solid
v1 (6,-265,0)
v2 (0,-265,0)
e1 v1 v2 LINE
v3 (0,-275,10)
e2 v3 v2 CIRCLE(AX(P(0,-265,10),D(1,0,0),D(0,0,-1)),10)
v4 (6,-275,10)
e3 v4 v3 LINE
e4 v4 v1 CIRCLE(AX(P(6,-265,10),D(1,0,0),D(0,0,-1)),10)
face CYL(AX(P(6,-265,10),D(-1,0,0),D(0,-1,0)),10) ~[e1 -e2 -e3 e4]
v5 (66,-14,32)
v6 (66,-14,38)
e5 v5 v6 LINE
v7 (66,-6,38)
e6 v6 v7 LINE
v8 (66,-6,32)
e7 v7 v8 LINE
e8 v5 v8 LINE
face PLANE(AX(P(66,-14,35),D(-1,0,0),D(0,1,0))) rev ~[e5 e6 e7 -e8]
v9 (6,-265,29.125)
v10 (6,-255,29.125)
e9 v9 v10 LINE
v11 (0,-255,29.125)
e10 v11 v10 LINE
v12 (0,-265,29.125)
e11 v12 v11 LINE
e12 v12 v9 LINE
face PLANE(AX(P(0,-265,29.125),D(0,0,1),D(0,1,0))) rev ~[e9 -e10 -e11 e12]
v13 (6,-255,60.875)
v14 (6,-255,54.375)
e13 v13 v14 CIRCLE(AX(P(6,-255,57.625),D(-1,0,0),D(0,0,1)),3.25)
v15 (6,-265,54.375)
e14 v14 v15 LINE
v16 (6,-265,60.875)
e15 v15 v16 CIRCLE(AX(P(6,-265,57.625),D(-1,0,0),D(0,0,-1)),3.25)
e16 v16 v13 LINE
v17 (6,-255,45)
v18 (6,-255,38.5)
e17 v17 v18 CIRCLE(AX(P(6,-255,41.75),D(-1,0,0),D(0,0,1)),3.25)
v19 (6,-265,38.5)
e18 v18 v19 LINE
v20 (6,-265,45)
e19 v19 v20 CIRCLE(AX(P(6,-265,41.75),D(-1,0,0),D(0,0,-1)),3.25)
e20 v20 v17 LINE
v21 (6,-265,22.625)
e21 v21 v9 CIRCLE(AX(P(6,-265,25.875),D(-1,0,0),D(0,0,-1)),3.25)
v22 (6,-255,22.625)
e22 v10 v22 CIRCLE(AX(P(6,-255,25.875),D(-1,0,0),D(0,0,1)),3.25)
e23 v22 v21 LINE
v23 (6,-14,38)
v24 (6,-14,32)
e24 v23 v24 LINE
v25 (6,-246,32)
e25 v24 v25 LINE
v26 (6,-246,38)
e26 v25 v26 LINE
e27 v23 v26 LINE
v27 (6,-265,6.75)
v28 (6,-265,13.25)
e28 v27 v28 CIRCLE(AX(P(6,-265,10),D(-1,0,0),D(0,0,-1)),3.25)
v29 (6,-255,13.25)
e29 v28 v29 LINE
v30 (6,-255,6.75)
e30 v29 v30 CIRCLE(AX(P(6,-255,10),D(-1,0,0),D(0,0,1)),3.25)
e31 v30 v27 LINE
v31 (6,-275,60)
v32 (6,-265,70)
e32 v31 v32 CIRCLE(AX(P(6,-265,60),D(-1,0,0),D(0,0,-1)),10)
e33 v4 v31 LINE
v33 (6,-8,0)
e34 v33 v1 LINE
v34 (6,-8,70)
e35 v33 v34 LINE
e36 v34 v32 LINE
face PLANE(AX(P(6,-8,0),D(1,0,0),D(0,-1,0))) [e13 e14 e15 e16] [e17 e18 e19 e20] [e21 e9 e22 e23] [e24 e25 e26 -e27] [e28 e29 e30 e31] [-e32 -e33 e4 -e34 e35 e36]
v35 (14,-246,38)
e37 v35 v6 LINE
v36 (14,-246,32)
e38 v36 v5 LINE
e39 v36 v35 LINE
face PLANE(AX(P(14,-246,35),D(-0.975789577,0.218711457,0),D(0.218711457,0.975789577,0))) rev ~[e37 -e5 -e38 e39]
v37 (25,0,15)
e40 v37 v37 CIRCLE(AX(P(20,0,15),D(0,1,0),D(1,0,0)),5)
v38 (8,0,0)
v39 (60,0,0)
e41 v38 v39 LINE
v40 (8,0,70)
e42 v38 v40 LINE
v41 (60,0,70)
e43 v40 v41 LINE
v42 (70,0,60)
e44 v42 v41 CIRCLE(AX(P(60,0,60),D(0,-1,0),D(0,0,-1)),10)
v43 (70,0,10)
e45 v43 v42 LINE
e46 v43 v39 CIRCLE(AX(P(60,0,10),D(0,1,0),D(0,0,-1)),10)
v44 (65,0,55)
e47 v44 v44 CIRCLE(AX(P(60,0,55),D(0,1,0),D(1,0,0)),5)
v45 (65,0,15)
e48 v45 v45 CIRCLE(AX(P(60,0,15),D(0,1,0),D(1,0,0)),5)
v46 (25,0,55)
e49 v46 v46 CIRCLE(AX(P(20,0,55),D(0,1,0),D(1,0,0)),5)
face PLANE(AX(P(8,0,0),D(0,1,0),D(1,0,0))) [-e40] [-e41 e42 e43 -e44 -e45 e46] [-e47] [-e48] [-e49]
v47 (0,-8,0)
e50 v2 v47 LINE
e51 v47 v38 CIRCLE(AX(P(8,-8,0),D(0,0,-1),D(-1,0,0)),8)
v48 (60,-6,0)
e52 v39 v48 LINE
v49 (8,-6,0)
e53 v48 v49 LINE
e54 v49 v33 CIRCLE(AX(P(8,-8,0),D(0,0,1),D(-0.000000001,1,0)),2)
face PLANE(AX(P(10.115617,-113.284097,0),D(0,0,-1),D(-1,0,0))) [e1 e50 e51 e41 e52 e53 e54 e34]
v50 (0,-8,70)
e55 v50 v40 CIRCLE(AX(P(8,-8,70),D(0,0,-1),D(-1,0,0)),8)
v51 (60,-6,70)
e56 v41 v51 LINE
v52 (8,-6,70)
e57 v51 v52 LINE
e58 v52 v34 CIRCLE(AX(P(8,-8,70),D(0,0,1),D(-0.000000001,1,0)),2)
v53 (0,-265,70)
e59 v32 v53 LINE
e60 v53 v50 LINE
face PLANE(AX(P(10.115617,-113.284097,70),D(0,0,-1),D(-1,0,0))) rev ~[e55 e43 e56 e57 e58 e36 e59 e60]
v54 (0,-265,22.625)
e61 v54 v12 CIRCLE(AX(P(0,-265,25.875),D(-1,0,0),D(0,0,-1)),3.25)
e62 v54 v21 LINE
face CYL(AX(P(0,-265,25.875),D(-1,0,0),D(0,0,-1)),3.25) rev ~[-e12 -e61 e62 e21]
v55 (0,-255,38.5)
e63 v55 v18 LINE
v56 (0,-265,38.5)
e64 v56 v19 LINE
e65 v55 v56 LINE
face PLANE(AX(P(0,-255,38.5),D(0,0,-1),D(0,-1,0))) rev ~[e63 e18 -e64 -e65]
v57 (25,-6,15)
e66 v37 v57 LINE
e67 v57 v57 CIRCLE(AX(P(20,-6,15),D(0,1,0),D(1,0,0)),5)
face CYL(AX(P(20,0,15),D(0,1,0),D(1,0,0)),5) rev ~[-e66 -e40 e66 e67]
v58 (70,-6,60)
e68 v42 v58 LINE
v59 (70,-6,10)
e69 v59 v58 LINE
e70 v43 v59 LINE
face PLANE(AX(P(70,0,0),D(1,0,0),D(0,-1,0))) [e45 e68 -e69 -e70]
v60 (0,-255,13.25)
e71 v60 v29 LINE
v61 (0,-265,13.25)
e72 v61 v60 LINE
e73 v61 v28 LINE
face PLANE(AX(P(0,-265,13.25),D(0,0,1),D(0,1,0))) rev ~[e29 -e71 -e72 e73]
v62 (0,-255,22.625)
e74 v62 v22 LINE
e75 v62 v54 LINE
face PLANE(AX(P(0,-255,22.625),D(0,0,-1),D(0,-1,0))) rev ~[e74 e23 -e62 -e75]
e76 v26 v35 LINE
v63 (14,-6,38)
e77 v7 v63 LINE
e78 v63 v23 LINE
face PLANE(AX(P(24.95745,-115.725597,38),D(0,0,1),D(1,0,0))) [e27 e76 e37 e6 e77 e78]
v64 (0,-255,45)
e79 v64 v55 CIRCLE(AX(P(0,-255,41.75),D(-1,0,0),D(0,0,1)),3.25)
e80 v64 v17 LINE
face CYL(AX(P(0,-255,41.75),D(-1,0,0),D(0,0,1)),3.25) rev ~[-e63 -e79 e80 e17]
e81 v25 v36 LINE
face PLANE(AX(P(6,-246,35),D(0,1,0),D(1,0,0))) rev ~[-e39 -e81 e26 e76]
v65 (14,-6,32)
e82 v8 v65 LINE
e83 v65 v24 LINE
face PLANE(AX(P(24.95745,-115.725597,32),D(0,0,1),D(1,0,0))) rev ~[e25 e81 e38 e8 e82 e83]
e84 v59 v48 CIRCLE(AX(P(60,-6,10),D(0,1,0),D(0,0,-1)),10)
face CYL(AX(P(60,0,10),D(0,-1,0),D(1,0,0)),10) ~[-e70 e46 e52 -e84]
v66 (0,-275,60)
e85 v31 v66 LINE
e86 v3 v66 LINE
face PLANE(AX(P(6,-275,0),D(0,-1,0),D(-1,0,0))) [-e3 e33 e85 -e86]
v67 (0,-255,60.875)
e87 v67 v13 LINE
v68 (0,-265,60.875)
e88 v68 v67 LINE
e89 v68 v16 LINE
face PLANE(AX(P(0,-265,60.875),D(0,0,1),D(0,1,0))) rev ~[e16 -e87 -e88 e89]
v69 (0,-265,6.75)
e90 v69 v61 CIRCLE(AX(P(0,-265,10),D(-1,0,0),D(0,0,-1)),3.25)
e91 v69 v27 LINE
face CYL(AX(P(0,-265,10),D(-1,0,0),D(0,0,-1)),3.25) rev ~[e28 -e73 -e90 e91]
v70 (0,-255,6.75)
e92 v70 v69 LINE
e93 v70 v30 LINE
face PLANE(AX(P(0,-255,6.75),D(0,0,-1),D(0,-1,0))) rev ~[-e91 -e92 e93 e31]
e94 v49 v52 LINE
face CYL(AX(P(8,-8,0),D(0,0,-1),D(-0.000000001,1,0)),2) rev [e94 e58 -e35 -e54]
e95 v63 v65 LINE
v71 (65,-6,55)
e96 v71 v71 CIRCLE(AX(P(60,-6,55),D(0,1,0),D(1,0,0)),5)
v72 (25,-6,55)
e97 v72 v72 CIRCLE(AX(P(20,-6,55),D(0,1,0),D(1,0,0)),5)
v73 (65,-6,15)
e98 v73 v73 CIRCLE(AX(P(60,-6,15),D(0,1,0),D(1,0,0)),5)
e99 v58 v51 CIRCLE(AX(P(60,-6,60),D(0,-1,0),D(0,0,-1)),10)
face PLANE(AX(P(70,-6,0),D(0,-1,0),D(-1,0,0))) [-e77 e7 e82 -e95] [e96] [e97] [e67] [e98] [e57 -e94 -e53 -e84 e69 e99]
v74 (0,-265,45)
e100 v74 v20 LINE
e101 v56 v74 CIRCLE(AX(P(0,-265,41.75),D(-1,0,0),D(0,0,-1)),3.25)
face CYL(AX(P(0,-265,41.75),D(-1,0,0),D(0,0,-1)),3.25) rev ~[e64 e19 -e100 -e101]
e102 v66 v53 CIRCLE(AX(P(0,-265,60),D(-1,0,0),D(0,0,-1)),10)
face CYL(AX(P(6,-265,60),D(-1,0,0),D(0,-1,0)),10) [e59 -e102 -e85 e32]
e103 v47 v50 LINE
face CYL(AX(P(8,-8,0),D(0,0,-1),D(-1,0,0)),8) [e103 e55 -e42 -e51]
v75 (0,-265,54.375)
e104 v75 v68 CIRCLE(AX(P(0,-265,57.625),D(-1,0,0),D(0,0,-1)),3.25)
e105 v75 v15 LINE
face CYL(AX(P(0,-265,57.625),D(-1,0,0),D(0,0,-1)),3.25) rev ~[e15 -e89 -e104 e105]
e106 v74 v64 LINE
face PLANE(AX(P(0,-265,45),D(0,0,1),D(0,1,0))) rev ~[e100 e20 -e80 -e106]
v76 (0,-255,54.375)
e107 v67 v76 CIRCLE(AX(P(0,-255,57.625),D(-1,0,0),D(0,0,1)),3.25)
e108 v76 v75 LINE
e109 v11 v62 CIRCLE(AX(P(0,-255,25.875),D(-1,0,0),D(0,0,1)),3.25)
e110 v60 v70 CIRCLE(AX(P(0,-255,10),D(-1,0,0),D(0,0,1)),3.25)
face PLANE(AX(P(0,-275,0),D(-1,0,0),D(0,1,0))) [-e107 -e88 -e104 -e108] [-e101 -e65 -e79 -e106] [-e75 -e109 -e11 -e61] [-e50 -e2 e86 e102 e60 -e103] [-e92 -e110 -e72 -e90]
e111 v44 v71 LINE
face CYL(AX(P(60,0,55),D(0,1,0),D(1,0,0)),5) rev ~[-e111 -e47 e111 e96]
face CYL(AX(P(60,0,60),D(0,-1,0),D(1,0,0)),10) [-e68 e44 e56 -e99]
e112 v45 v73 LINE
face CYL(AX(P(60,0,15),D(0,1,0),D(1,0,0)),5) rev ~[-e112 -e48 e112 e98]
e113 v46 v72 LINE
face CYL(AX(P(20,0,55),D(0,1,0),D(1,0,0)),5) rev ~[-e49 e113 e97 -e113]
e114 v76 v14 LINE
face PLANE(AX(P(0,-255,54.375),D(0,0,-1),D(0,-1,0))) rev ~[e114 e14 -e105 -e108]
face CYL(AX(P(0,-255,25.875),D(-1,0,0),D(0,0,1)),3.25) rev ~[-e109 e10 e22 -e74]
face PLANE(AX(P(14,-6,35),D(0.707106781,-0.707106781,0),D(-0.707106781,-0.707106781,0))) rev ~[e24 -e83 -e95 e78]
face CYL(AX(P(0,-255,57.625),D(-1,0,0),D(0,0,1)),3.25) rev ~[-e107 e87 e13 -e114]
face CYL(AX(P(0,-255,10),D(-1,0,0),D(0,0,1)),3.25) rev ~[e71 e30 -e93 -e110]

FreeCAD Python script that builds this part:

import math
import FreeCAD as App
import Part
import Sketcher


def edges_at(feature, points):
    """Names of the edges that pass closest to the given points."""
    edges = feature.Shape.Edges
    near = lambda p: min(range(len(edges)), key=lambda i: edges[i].distToShape(Part.Vertex(*p))[0])
    return sorted({f"Edge{near(p) + 1}" for p in points})


def add_polygon(sketch, points):
    """Adds a closed chain of lines whose ends are joined by coincident constraints."""
    first, n = sketch.GeometryCount, len(points)
    for a, b in zip(points, points[1:] + points[:1]):
        sketch.addGeometry(Part.LineSegment(App.Vector(*a, 0), App.Vector(*b, 0)), False)
    for i in range(n):
        sketch.addConstraint(Sketcher.Constraint("Coincident", first + i, 2, first + (i + 1) % n, 1))

doc = App.newDocument("Part")
body = doc.addObject("PartDesign::Body", "Body")

# Sketch on XY plane
sketch1 = body.newObject("Sketcher::SketchObject", "Sketch")
sketch1.AttachmentSupport = (doc.getObject("XY_Plane"), [""])
sketch1.MapMode = "FlatFace"
sketch1.addGeometry(Part.LineSegment(App.Vector(70, 0, 0), App.Vector(8, 0, 0)), False)
sketch1.addGeometry(Part.ArcOfCircle(Part.Circle(App.Vector(8, -8, 0), App.Vector(0, 0, 1), 8), math.radians(90), math.radians(180)), False)
sketch1.addGeometry(Part.LineSegment(App.Vector(0, -8, 0), App.Vector(0, -275, 0)), False)
sketch1.addGeometry(Part.LineSegment(App.Vector(0, -275, 0), App.Vector(6, -275, 0)), False)
sketch1.addGeometry(Part.LineSegment(App.Vector(6, -275, 0), App.Vector(6, -8, 0)), False)
sketch1.addGeometry(Part.ArcOfCircle(Part.Circle(App.Vector(8, -8, 0), App.Vector(0, 0, 1), 2), math.radians(90), math.radians(180)), False)
sketch1.addGeometry(Part.LineSegment(App.Vector(8, -6, 0), App.Vector(70, -6, 0)), False)
sketch1.addGeometry(Part.LineSegment(App.Vector(70, -6, 0), App.Vector(70, 0, 0)), False)
sketch1.addConstraint(Sketcher.Constraint("Tangent", 0, 2, 1, 1))
sketch1.addConstraint(Sketcher.Constraint("Tangent", 1, 2, 2, 1))
sketch1.addConstraint(Sketcher.Constraint("Coincident", 2, 2, 3, 1))
sketch1.addConstraint(Sketcher.Constraint("Coincident", 3, 2, 4, 1))
sketch1.addConstraint(Sketcher.Constraint("Tangent", 4, 2, 5, 2))
sketch1.addConstraint(Sketcher.Constraint("Tangent", 5, 1, 6, 1))
sketch1.addConstraint(Sketcher.Constraint("Coincident", 6, 2, 7, 1))
sketch1.addConstraint(Sketcher.Constraint("Coincident", 7, 2, 0, 1))
sketch1.addConstraint(Sketcher.Constraint("Horizontal", 0))
sketch1.addConstraint(Sketcher.Constraint("Vertical", 2))
sketch1.addConstraint(Sketcher.Constraint("Horizontal", 3))
sketch1.addConstraint(Sketcher.Constraint("Vertical", 4))
sketch1.addConstraint(Sketcher.Constraint("Horizontal", 6))
sketch1.addConstraint(Sketcher.Constraint("Vertical", 7))
sketch1.addConstraint(Sketcher.Constraint("Coincident", 5, 3, 1, 3))
sketch1.addConstraint(Sketcher.Constraint("PointOnObject", 0, 2, -1))
sketch1.addConstraint(Sketcher.Constraint("PointOnObject", 1, 2, -2))
sketch1.addConstraint(Sketcher.Constraint("Radius", 1, 8.0))
sketch1.addConstraint(Sketcher.Constraint("Radius", 5, 2.0))
sketch1.addConstraint(Sketcher.Constraint("DistanceX", 0, 2, 0, 1, 62.0))
sketch1.addConstraint(Sketcher.Constraint("DistanceY", 2, 2, 2, 1, 267.0))
pad1 = body.newObject("PartDesign::Pad", "Pad")
pad1.Profile = sketch1
pad1.Length = 70
doc.recompute()

fillet = body.newObject("PartDesign::Fillet", "Fillet")
fillet.Base = (pad1, edges_at(pad1, [
    (70, -3, 0),
    (3, -275, 70),
    (70, -3, 70),
    (3, -275, 0),
]))
fillet.Radius = 10

# Sketch on YZ plane
sketch2 = body.newObject("Sketcher::SketchObject", "Sketch001")
sketch2.AttachmentSupport = (doc.getObject("YZ_Plane"), [""])
sketch2.MapMode = "FlatFace"
sketch2.addGeometry(Part.LineSegment(App.Vector(-255, 6.8, 0), App.Vector(-265, 6.8, 0)), False)
sketch2.addGeometry(Part.ArcOfCircle(Part.Circle(App.Vector(-265, 10, 0), App.Vector(0, 0, 1), 3.2), math.radians(90), math.radians(270)), False)
sketch2.addGeometry(Part.LineSegment(App.Vector(-265, 13.2, 0), App.Vector(-255, 13.2, 0)), False)
sketch2.addGeometry(Part.ArcOfCircle(Part.Circle(App.Vector(-255, 10, 0), App.Vector(0, 0, 1), 3.2), math.radians(-90), math.radians(90)), False)
sketch2.addConstraint(Sketcher.Constraint("Tangent", 0, 2, 1, 2))
sketch2.addConstraint(Sketcher.Constraint("Tangent", 1, 1, 2, 1))
sketch2.addConstraint(Sketcher.Constraint("Tangent", 2, 2, 3, 2))
sketch2.addConstraint(Sketcher.Constraint("Tangent", 3, 1, 0, 1))
sketch2.addConstraint(Sketcher.Constraint("Horizontal", 0))
sketch2.addConstraint(Sketcher.Constraint("Horizontal", 2))
sketch2.addConstraint(Sketcher.Constraint("DistanceX", 0, 2, 0, 1, 10.0))
sketch2.addConstraint(Sketcher.Constraint("Radius", 1, 3.25))
sketch2.addConstraint(Sketcher.Constraint("DistanceX", 1, 3, -1, 1, 265.0))
sketch2.addConstraint(Sketcher.Constraint("DistanceY", -1, 1, 1, 3, 10.0))
pocket1 = body.newObject("PartDesign::Pocket", "Pocket")
pocket1.Profile = sketch2
pocket1.Type = "UpToFirst"
pocket1.Reversed = True

# Sketch on YZ plane
sketch3 = body.newObject("Sketcher::SketchObject", "Sketch002")
sketch3.AttachmentSupport = (doc.getObject("YZ_Plane"), [""])
sketch3.MapMode = "FlatFace"
sketch3.addGeometry(Part.LineSegment(App.Vector(-255, 22.6, 0), App.Vector(-265, 22.6, 0)), False)
sketch3.addGeometry(Part.ArcOfCircle(Part.Circle(App.Vector(-265, 25.9, 0), App.Vector(0, 0, 1), 3.2), math.radians(90), math.radians(270)), False)
sketch3.addGeometry(Part.LineSegment(App.Vector(-265, 29.1, 0), App.Vector(-255, 29.1, 0)), False)
sketch3.addGeometry(Part.ArcOfCircle(Part.Circle(App.Vector(-255, 25.9, 0), App.Vector(0, 0, 1), 3.2), math.radians(-90), math.radians(90)), False)
sketch3.addConstraint(Sketcher.Constraint("Tangent", 0, 2, 1, 2))
sketch3.addConstraint(Sketcher.Constraint("Tangent", 1, 1, 2, 1))
sketch3.addConstraint(Sketcher.Constraint("Tangent", 2, 2, 3, 2))
sketch3.addConstraint(Sketcher.Constraint("Tangent", 3, 1, 0, 1))
sketch3.addConstraint(Sketcher.Constraint("Horizontal", 0))
sketch3.addConstraint(Sketcher.Constraint("Horizontal", 2))
sketch3.addConstraint(Sketcher.Constraint("DistanceX", 0, 2, 0, 1, 10.0))
sketch3.addConstraint(Sketcher.Constraint("Radius", 1, 3.25))
sketch3.addConstraint(Sketcher.Constraint("DistanceX", 1, 3, -1, 1, 265.0))
sketch3.addConstraint(Sketcher.Constraint("DistanceY", -1, 1, 1, 3, 25.875))
pocket2 = body.newObject("PartDesign::Pocket", "Pocket001")
pocket2.Profile = sketch3
pocket2.Type = "UpToFirst"
pocket2.Reversed = True

# Sketch on YZ plane
sketch4 = body.newObject("Sketcher::SketchObject", "Sketch003")
sketch4.AttachmentSupport = (doc.getObject("YZ_Plane"), [""])
sketch4.MapMode = "FlatFace"
sketch4.addGeometry(Part.LineSegment(App.Vector(-255, 38.5, 0), App.Vector(-265, 38.5, 0)), False)
sketch4.addGeometry(Part.ArcOfCircle(Part.Circle(App.Vector(-265, 41.8, 0), App.Vector(0, 0, 1), 3.2), math.radians(90), math.radians(270)), False)
sketch4.addGeometry(Part.LineSegment(App.Vector(-265, 45, 0), App.Vector(-255, 45, 0)), False)
sketch4.addGeometry(Part.ArcOfCircle(Part.Circle(App.Vector(-255, 41.8, 0), App.Vector(0, 0, 1), 3.2), math.radians(-90), math.radians(90)), False)
sketch4.addConstraint(Sketcher.Constraint("Tangent", 0, 2, 1, 2))
sketch4.addConstraint(Sketcher.Constraint("Tangent", 1, 1, 2, 1))
sketch4.addConstraint(Sketcher.Constraint("Tangent", 2, 2, 3, 2))
sketch4.addConstraint(Sketcher.Constraint("Tangent", 3, 1, 0, 1))
sketch4.addConstraint(Sketcher.Constraint("Horizontal", 0))
sketch4.addConstraint(Sketcher.Constraint("Horizontal", 2))
sketch4.addConstraint(Sketcher.Constraint("DistanceX", 0, 2, 0, 1, 10.0))
sketch4.addConstraint(Sketcher.Constraint("Radius", 1, 3.25))
sketch4.addConstraint(Sketcher.Constraint("DistanceX", 1, 3, -1, 1, 265.0))
sketch4.addConstraint(Sketcher.Constraint("DistanceY", -1, 1, 1, 1, 45.0))
pocket3 = body.newObject("PartDesign::Pocket", "Pocket002")
pocket3.Profile = sketch4
pocket3.Type = "UpToFirst"
pocket3.Reversed = True

# Sketch on YZ plane
sketch5 = body.newObject("Sketcher::SketchObject", "Sketch004")
sketch5.AttachmentSupport = (doc.getObject("YZ_Plane"), [""])
sketch5.MapMode = "FlatFace"
sketch5.addGeometry(Part.LineSegment(App.Vector(-255, 54.4, 0), App.Vector(-265, 54.4, 0)), False)
sketch5.addGeometry(Part.ArcOfCircle(Part.Circle(App.Vector(-265, 57.6, 0), App.Vector(0, 0, 1), 3.2), math.radians(90), math.radians(270)), False)
sketch5.addGeometry(Part.LineSegment(App.Vector(-265, 60.9, 0), App.Vector(-255, 60.9, 0)), False)
sketch5.addGeometry(Part.ArcOfCircle(Part.Circle(App.Vector(-255, 57.6, 0), App.Vector(0, 0, 1), 3.2), math.radians(-90), math.radians(90)), False)
sketch5.addConstraint(Sketcher.Constraint("Tangent", 0, 2, 1, 2))
sketch5.addConstraint(Sketcher.Constraint("Tangent", 1, 1, 2, 1))
sketch5.addConstraint(Sketcher.Constraint("Tangent", 2, 2, 3, 2))
sketch5.addConstraint(Sketcher.Constraint("Tangent", 3, 1, 0, 1))
sketch5.addConstraint(Sketcher.Constraint("Horizontal", 0))
sketch5.addConstraint(Sketcher.Constraint("Horizontal", 2))
sketch5.addConstraint(Sketcher.Constraint("DistanceX", 0, 2, 0, 1, 10.0))
sketch5.addConstraint(Sketcher.Constraint("Radius", 1, 3.25))
sketch5.addConstraint(Sketcher.Constraint("DistanceX", 1, 3, -1, 1, 265.0))
sketch5.addConstraint(Sketcher.Constraint("DistanceY", -1, 1, 1, 3, 57.625))
pocket4 = body.newObject("PartDesign::Pocket", "Pocket003")
pocket4.Profile = sketch5
pocket4.Type = "UpToFirst"
pocket4.Reversed = True

# Sketch on XZ plane
sketch6 = body.newObject("Sketcher::SketchObject", "Sketch005")
sketch6.AttachmentSupport = (doc.getObject("XZ_Plane"), [""])
sketch6.MapMode = "FlatFace"
sketch6.addGeometry(Part.Circle(App.Vector(60, 15, 0), App.Vector(0, 0, 1), 5), False)
sketch6.addConstraint(Sketcher.Constraint("Diameter", 0, 10.0))
sketch6.addConstraint(Sketcher.Constraint("DistanceX", -1, 1, 0, 3, 60.0))
sketch6.addConstraint(Sketcher.Constraint("DistanceY", -1, 1, 0, 3, 15.0))
pocket5 = body.newObject("PartDesign::Pocket", "Pocket004")
pocket5.Profile = sketch6
pocket5.Type = "UpToFirst"
pocket5.Reversed = True

# Sketch on XZ plane
sketch7 = body.newObject("Sketcher::SketchObject", "Sketch006")
sketch7.AttachmentSupport = (doc.getObject("XZ_Plane"), [""])
sketch7.MapMode = "FlatFace"
sketch7.addGeometry(Part.Circle(App.Vector(20, 15, 0), App.Vector(0, 0, 1), 5), False)
sketch7.addConstraint(Sketcher.Constraint("Diameter", 0, 10.0))
sketch7.addConstraint(Sketcher.Constraint("DistanceX", -1, 1, 0, 3, 20.0))
sketch7.addConstraint(Sketcher.Constraint("DistanceY", -1, 1, 0, 3, 15.0))
pocket6 = body.newObject("PartDesign::Pocket", "Pocket005")
pocket6.Profile = sketch7
pocket6.Type = "UpToFirst"
pocket6.Reversed = True

# Sketch on XZ plane
sketch8 = body.newObject("Sketcher::SketchObject", "Sketch007")
sketch8.AttachmentSupport = (doc.getObject("XZ_Plane"), [""])
sketch8.MapMode = "FlatFace"
sketch8.addGeometry(Part.Circle(App.Vector(20, 55, 0), App.Vector(0, 0, 1), 5), False)
sketch8.addConstraint(Sketcher.Constraint("Diameter", 0, 10.0))
sketch8.addConstraint(Sketcher.Constraint("DistanceX", -1, 1, 0, 3, 20.0))
sketch8.addConstraint(Sketcher.Constraint("DistanceY", -1, 1, 0, 3, 55.0))
pocket7 = body.newObject("PartDesign::Pocket", "Pocket006")
pocket7.Profile = sketch8
pocket7.Type = "UpToFirst"
pocket7.Reversed = True

# Sketch on XZ plane
sketch9 = body.newObject("Sketcher::SketchObject", "Sketch008")
sketch9.AttachmentSupport = (doc.getObject("XZ_Plane"), [""])
sketch9.MapMode = "FlatFace"
sketch9.addGeometry(Part.Circle(App.Vector(60, 55, 0), App.Vector(0, 0, 1), 5), False)
sketch9.addConstraint(Sketcher.Constraint("Diameter", 0, 10.0))
sketch9.addConstraint(Sketcher.Constraint("DistanceX", -1, 1, 0, 3, 60.0))
sketch9.addConstraint(Sketcher.Constraint("DistanceY", -1, 1, 0, 3, 55.0))
pocket8 = body.newObject("PartDesign::Pocket", "Pocket007")
pocket8.Profile = sketch9
pocket8.Type = "UpToFirst"
pocket8.Reversed = True

# Sketch on XY plane
sketch10 = body.newObject("Sketcher::SketchObject", "Sketch009")
sketch10.AttachmentSupport = (doc.getObject("XY_Plane"), [""])
sketch10.MapMode = "FlatFace"
sketch10.AttachmentOffset = App.Placement(App.Vector(0, 0, 35), App.Rotation())
add_polygon(sketch10, [(6, -246), (6, -14), (14, -6), (66, -6), (66, -14), (14, -246)])  # lines 0-5
sketch10.addConstraint(Sketcher.Constraint("Vertical", 0))
sketch10.addConstraint(Sketcher.Constraint("Horizontal", 2))
sketch10.addConstraint(Sketcher.Constraint("Vertical", 3))
sketch10.addConstraint(Sketcher.Constraint("Horizontal", 5))
sketch10.addConstraint(Sketcher.Constraint("Horizontal", 0, 2, 3, 2))
sketch10.addConstraint(Sketcher.Constraint("Vertical", 1, 2, 4, 2))
sketch10.addConstraint(Sketcher.Constraint("Equal", 5, 3))
sketch10.addConstraint(Sketcher.Constraint("DistanceX", 2, 1, 2, 2, 52.0))
sketch10.addConstraint(Sketcher.Constraint("DistanceX", 5, 2, 5, 1, 8.0))
sketch10.addConstraint(Sketcher.Constraint("DistanceY", 0, 1, 0, 2, 232.0))
sketch10.addConstraint(Sketcher.Constraint("DistanceX", -1, 1, 0, 2, 6.0))
sketch10.addConstraint(Sketcher.Constraint("DistanceY", 0, 2, -1, 1, 14.0))
pad2 = body.newObject("PartDesign::Pad", "Pad001")
pad2.Profile = sketch10
pad2.Length = 6
pad2.Midplane = True

doc.recompute()
